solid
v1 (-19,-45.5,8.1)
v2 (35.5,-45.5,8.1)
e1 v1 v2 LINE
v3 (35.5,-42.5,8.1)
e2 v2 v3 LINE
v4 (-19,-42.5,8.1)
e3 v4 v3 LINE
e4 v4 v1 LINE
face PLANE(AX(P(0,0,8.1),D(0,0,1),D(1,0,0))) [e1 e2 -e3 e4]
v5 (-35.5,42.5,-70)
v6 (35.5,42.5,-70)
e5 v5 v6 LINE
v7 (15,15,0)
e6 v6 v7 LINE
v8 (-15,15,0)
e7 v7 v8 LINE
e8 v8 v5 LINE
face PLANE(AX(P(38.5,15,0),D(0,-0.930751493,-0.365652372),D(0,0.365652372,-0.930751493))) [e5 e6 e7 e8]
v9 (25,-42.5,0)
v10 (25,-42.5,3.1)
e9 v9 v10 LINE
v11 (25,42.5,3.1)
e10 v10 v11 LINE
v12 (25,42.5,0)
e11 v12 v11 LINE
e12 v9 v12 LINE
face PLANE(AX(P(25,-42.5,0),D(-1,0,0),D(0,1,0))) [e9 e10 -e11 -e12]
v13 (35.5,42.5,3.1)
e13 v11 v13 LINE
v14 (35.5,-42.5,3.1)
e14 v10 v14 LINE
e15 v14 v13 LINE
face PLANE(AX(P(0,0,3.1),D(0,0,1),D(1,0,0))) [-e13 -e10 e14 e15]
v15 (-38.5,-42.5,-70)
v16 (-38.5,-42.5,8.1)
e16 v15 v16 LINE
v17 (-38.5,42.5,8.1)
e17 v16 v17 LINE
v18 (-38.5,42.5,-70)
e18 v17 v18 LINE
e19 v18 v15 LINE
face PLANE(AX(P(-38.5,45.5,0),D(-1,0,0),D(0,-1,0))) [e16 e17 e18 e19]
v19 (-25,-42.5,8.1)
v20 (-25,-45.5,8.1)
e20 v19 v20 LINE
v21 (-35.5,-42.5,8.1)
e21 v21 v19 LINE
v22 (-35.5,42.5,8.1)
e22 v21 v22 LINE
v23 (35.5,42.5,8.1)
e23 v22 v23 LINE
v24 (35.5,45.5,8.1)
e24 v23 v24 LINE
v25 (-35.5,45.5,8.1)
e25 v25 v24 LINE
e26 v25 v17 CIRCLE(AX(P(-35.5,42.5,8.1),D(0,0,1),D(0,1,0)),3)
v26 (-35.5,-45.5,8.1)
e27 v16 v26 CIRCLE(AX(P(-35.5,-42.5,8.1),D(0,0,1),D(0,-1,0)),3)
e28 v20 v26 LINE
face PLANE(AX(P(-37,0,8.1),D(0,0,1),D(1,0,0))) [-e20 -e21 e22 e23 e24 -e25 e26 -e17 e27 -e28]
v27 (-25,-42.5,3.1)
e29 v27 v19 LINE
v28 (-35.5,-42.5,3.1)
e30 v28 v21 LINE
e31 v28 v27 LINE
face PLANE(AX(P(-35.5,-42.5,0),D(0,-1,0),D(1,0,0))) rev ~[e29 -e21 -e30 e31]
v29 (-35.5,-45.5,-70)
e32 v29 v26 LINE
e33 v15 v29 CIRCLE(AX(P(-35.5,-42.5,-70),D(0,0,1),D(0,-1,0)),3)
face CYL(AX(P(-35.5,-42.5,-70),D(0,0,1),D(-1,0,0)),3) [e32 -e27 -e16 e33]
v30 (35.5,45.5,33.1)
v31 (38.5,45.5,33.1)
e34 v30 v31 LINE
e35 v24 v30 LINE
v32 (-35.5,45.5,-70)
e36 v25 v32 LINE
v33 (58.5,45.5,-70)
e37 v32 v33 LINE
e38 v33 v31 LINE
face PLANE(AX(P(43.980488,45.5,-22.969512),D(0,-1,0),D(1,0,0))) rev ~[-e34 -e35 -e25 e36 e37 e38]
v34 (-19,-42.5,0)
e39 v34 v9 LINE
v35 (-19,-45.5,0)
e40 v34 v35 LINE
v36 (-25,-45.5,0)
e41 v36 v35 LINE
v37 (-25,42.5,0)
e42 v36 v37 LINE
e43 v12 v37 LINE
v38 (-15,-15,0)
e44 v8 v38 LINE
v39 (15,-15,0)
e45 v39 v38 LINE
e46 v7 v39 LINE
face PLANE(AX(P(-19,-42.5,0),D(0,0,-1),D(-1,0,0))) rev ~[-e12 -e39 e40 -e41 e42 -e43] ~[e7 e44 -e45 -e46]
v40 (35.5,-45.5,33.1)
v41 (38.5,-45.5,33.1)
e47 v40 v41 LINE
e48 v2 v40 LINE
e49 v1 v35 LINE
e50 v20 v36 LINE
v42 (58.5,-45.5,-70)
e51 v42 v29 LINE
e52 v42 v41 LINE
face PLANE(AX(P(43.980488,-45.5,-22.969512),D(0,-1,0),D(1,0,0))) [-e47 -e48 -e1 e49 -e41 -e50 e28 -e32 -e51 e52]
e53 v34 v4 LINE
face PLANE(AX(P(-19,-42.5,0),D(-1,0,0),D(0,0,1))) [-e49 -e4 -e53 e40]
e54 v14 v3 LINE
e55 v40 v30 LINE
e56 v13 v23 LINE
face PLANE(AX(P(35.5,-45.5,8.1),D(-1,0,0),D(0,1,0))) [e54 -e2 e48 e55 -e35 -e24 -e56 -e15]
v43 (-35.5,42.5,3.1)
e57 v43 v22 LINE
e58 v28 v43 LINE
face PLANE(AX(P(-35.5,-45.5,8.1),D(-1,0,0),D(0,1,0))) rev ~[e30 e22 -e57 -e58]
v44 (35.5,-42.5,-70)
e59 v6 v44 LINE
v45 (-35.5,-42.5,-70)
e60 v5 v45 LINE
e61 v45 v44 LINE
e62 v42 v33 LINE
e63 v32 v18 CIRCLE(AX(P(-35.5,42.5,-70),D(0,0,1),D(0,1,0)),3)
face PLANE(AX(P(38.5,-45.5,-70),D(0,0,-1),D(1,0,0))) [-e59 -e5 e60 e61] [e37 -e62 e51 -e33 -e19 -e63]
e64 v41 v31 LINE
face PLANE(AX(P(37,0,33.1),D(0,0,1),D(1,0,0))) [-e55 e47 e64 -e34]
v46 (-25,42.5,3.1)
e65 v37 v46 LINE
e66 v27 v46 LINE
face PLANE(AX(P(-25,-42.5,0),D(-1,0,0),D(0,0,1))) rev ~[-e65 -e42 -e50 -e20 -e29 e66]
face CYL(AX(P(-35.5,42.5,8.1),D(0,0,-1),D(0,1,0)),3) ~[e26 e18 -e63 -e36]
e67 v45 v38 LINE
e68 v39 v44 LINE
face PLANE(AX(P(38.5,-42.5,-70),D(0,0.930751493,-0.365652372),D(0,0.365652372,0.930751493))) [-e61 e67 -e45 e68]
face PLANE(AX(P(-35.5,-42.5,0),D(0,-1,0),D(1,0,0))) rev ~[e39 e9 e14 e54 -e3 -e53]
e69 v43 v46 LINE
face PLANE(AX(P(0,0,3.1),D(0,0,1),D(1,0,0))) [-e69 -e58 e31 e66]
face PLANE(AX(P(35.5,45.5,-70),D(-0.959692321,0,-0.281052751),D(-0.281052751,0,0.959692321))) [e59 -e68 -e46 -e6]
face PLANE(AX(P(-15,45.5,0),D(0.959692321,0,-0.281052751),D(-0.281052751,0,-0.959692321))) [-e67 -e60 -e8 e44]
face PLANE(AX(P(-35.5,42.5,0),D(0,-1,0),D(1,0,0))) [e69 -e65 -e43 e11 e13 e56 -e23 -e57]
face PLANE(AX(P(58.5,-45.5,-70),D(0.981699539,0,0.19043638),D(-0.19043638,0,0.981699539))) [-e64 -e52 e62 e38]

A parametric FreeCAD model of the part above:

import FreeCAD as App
import Part
import Sketcher
from FreeCAD import Vector


def edges_at(feature, points):
    """Names of the edges that pass closest to the given points."""
    edges = feature.Shape.Edges
    near = lambda p: min(range(len(edges)), key=lambda i: edges[i].distToShape(Part.Vertex(*p))[0])
    return sorted({f"Edge{near(p) + 1}" for p in points})


def add_polygon(sketch, points):
    """Adds a closed chain of lines whose ends are joined by coincident constraints."""
    first, n = sketch.GeometryCount, len(points)
    for a, b in zip(points, points[1:] + points[:1]):
        sketch.addGeometry(Part.LineSegment(App.Vector(*a, 0), App.Vector(*b, 0)), False)
    for i in range(n):
        sketch.addConstraint(Sketcher.Constraint("Coincident", first + i, 2, first + (i + 1) % n, 1))

doc = App.newDocument("Part")
body = doc.addObject("PartDesign::Body", "Body")

# Sketch on XY plane
sketch1 = body.newObject("Sketcher::SketchObject", "Sketch")
sketch1.AttachmentSupport = (doc.getObject("XY_Plane"), [""])
sketch1.MapMode = "FlatFace"
add_polygon(sketch1, [(-38, 46), (-38, -46), (38, -46), (38, 46)])  # lines 0-3
add_polygon(sketch1, [(25, -42), (-25, -42), (-25, 42), (25, 42)])  # lines 4-7
sketch1.addConstraint([
    Sketcher.Constraint("Vertical", 0),
    Sketcher.Constraint("Horizontal", 1),
    Sketcher.Constraint("Vertical", 2),
    Sketcher.Constraint("Horizontal", 3),
    Sketcher.Constraint("Horizontal", 4),
    Sketcher.Constraint("Vertical", 5),
    Sketcher.Constraint("Horizontal", 6),
    Sketcher.Constraint("Vertical", 7),
    Sketcher.Constraint("Symmetric", 0, 2, 2, 2, -1, 1),
    Sketcher.Constraint("Symmetric", 4, 2, 6, 2, -1, 1),
    Sketcher.Constraint("DistanceX", 1, 1, 1, 2, 77.0),
    Sketcher.Constraint("DistanceX", 4, 2, 4, 1, 50.0),
    Sketcher.Constraint("DistanceY", 0, 2, 0, 1, 91.0),
    Sketcher.Constraint("DistanceY", 5, 1, 5, 2, 85.0),
])
pad1 = body.newObject("PartDesign::Pad", "Pad")
pad1.Profile = sketch1
pad1.Length = 3.1

# Sketch on XY plane
sketch2 = body.newObject("Sketcher::SketchObject", "Sketch001")
sketch2.AttachmentSupport = (doc.getObject("XY_Plane"), [""])
sketch2.MapMode = "FlatFace"
sketch2.AttachmentOffset = App.Placement(Vector(0, 0, 3.1), App.Rotation())
add_polygon(sketch2, [(-38, 46), (-38, -46), (38, -46), (38, 46)])  # lines 0-3
add_polygon(sketch2, [(36, -42), (-36, -42), (-36, 42), (36, 42)])  # lines 4-7
sketch2.addConstraint([
    Sketcher.Constraint("Vertical", 0),
    Sketcher.Constraint("Horizontal", 1),
    Sketcher.Constraint("Vertical", 2),
    Sketcher.Constraint("Horizontal", 3),
    Sketcher.Constraint("Horizontal", 4),
    Sketcher.Constraint("Vertical", 5),
    Sketcher.Constraint("Horizontal", 6),
    Sketcher.Constraint("Vertical", 7),
    Sketcher.Constraint("Symmetric", 0, 2, 2, 2, -1, 1),
    Sketcher.Constraint("Symmetric", 4, 2, 6, 2, -1, 1),
    Sketcher.Constraint("DistanceX", 1, 1, 1, 2, 77.0),
    Sketcher.Constraint("DistanceX", 4, 2, 4, 1, 71.0),
    Sketcher.Constraint("DistanceY", 0, 2, 0, 1, 91.0),
    Sketcher.Constraint("DistanceY", 5, 1, 5, 2, 85.0),
])
pad2 = body.newObject("PartDesign::Pad", "Pad001")
pad2.Profile = sketch2
pad2.Length = 5

# Sketch on XY plane
sketch3 = body.newObject("Sketcher::SketchObject", "Sketch002")
sketch3.AttachmentSupport = (doc.getObject("XY_Plane"), [""])
sketch3.MapMode = "FlatFace"
sketch3.AttachmentOffset = App.Placement(Vector(0, 0, 8.1), App.Rotation())
add_polygon(sketch3, [(-38.5, 45.5), (-38.5, -45.5), (-35.5, -45.5), (-35.5, 45.5)])  # lines 0-3
add_polygon(sketch3, [(35.5, 45.5), (35.5, -45.5), (38.5, -45.5), (38.5, 45.5)])  # lines 4-7
sketch3.addConstraint([
    Sketcher.Constraint("Vertical", 0),
    Sketcher.Constraint("Horizontal", 1),
    Sketcher.Constraint("Vertical", 2),
    Sketcher.Constraint("Horizontal", 3),
    Sketcher.Constraint("Vertical", 4),
    Sketcher.Constraint("Horizontal", 5),
    Sketcher.Constraint("Vertical", 6),
    Sketcher.Constraint("Horizontal", 7),
    Sketcher.Constraint("Symmetric", 2, 2, 4, 2, -1, 1),
    Sketcher.Constraint("Symmetric", 0, 2, 6, 2, -1, 1),
    Sketcher.Constraint("Horizontal", 1, 2, 4, 2),
    Sketcher.Constraint("DistanceX", 1, 1, 1, 2, 3.0),
    Sketcher.Constraint("DistanceY", 0, 2, 0, 1, 91.0),
    Sketcher.Constraint("DistanceX", 1, 2, 4, 2, 71.0),
])
pad3 = body.newObject("PartDesign::Pad", "Pad002")
pad3.Profile = sketch3
pad3.Length = 25

# Sketch on XY plane
sketch4 = body.newObject("Sketcher::SketchObject", "Sketch003")
sketch4.AttachmentSupport = (doc.getObject("XY_Plane"), [""])
sketch4.MapMode = "FlatFace"
add_polygon(sketch4, [(-38, -46), (-38, 46), (38, 46), (38, -46)])  # lines 0-3
add_polygon(sketch4, [(36, 42), (-36, 42), (-36, -42), (36, -42)])  # lines 4-7
sketch4.addConstraint([
    Sketcher.Constraint("Vertical", 0),
    Sketcher.Constraint("Horizontal", 1),
    Sketcher.Constraint("Vertical", 2),
    Sketcher.Constraint("Horizontal", 3),
    Sketcher.Constraint("Horizontal", 4),
    Sketcher.Constraint("Vertical", 5),
    Sketcher.Constraint("Horizontal", 6),
    Sketcher.Constraint("Vertical", 7),
    Sketcher.Constraint("Symmetric", 0, 2, 2, 2, -1, 1),
    Sketcher.Constraint("Symmetric", 4, 2, 6, 2, -1, 1),
    Sketcher.Constraint("DistanceX", 1, 1, 1, 2, 77.0),
    Sketcher.Constraint("DistanceX", 4, 2, 4, 1, 71.0),
    Sketcher.Constraint("DistanceY", 0, 1, 0, 2, 91.0),
    Sketcher.Constraint("DistanceY", 5, 2, 5, 1, 85.0),
])
pad4 = body.newObject("PartDesign::Pad", "Pad003")
pad4.Profile = sketch4
pad4.Length = 70
pad4.Reversed = True

# Sketch on XZ plane
sketch5 = body.newObject("Sketcher::SketchObject", "Sketch004")
sketch5.AttachmentSupport = (doc.getObject("XZ_Plane"), [""])
sketch5.MapMode = "FlatFace"
sketch5.AttachmentOffset = App.Placement(Vector(0, 0, -45.5), App.Rotation())
add_polygon(sketch5, [(-38.5, -70), (-38.5, 0), (-15, 0), (-35.5, -70)])  # lines 0-3
add_polygon(sketch5, [(15, 0), (38.5, 0), (38.5, -70), (35.5, -70)])  # lines 4-7
sketch5.addConstraint([
    Sketcher.Constraint("Vertical", 0),
    Sketcher.Constraint("Horizontal", 1),
    Sketcher.Constraint("Horizontal", 3),
    Sketcher.Constraint("Horizontal", 4),
    Sketcher.Constraint("Vertical", 5),
    Sketcher.Constraint("Horizontal", 6),
    Sketcher.Constraint("Symmetric", 0, 2, 4, 2, -1, 1),
    Sketcher.Constraint("Symmetric", 2, 2, 6, 2, -2),
    Sketcher.Constraint("Symmetric", 1, 2, 7, 2, -2),
    Sketcher.Constraint("DistanceX", 3, 2, 3, 1, 3.0),
    Sketcher.Constraint("DistanceY", 0, 1, 0, 2, 70.0),
    Sketcher.Constraint("DistanceX", 1, 1, 1, 2, 23.5),
    Sketcher.Constraint("DistanceX", 1, 2, -1, 1, 15.0),
])
pad5 = body.newObject("PartDesign::Pad", "Pad004")
pad5.Profile = sketch5
pad5.Length = 91

# Sketch on YZ plane
sketch6 = body.newObject("Sketcher::SketchObject", "Sketch005")
sketch6.AttachmentSupport = (doc.getObject("YZ_Plane"), [""])
sketch6.MapMode = "FlatFace"
sketch6.AttachmentOffset = App.Placement(Vector(0, 0, 38.5), App.Rotation())
add_polygon(sketch6, [(45.5, -70), (45.5, 0), (15, 0), (42.5, -70)])  # lines 0-3
add_polygon(sketch6, [(-15, 0), (-45.5, 0), (-45.5, -70), (-42.5, -70)])  # lines 4-7
sketch6.addConstraint([
    Sketcher.Constraint("Vertical", 0),
    Sketcher.Constraint("Horizontal", 1),
    Sketcher.Constraint("Horizontal", 3),
    Sketcher.Constraint("Horizontal", 4),
    Sketcher.Constraint("Vertical", 5),
    Sketcher.Constraint("Horizontal", 6),
    Sketcher.Constraint("Symmetric", 0, 2, 4, 2, -1, 1),
    Sketcher.Constraint("Symmetric", 2, 2, 6, 2, -2),
    Sketcher.Constraint("Symmetric", 1, 2, 7, 2, -2),
    Sketcher.Constraint("DistanceX", 3, 1, 3, 2, 3.0),
    Sketcher.Constraint("DistanceY", 0, 1, 0, 2, 70.0),
    Sketcher.Constraint("DistanceX", 1, 2, 1, 1, 30.5),
    Sketcher.Constraint("DistanceX", -1, 1, 1, 2, 15.0),
])
pad6 = body.newObject("PartDesign::Pad", "Pad005")
pad6.Profile = sketch6
pad6.Length = 77
pad6.Reversed = True

# Sketch on XZ plane
sketch7 = body.newObject("Sketcher::SketchObject", "Sketch006")
sketch7.AttachmentSupport = (doc.getObject("XZ_Plane"), [""])
sketch7.MapMode = "FlatFace"
sketch7.AttachmentOffset = App.Placement(Vector(0, 0, 42.5), App.Rotation())
add_polygon(sketch7, [(-19, 8), (-19, 0), (-25, 0), (-25, 8)])  # lines 0-3
sketch7.addConstraint([
    Sketcher.Constraint("Vertical", 0),
    Sketcher.Constraint("Horizontal", 1),
    Sketcher.Constraint("Vertical", 2),
    Sketcher.Constraint("Horizontal", 3),
    Sketcher.Constraint("PointOnObject", 0, 2, -1),
    Sketcher.Constraint("DistanceX", 1, 2, 1, 1, 6.0),
    Sketcher.Constraint("DistanceY", 0, 2, 0, 1, 8.1),
    Sketcher.Constraint("DistanceX", 0, 2, -1, 1, 19.0),
])
pocket1 = body.newObject("PartDesign::Pocket", "Pocket")
pocket1.Profile = sketch7
pocket1.Length = 4
pocket1.Reversed = True

# Sketch on XZ plane
sketch8 = body.newObject("Sketcher::SketchObject", "Sketch007")
sketch8.AttachmentSupport = (doc.getObject("XZ_Plane"), [""])
sketch8.MapMode = "FlatFace"
sketch8.AttachmentOffset = App.Placement(Vector(0, 0, 45.5), App.Rotation())
add_polygon(sketch8, [(58, -70), (38, 33), (38, -70)])  # lines 0-2
sketch8.addConstraint([
    Sketcher.Constraint("Vertical", 1),
    Sketcher.Constraint("Horizontal", 2),
    Sketcher.Constraint("DistanceX", 2, 1, 2, 2, 20.0),
    Sketcher.Constraint("DistanceY", 1, 2, 1, 1, 103.1),
    Sketcher.Constraint("DistanceY", 1, 2, -1, 1, 70.0),
    Sketcher.Constraint("DistanceX", -1, 1, 0, 2, 38.5),
])
pad7 = body.newObject("PartDesign::Pad", "Pad006")
pad7.Profile = sketch8
pad7.Length = 91
pad7.Reversed = True

# Sketch on XY plane
sketch9 = body.newObject("Sketcher::SketchObject", "Sketch008")
sketch9.AttachmentSupport = (doc.getObject("XY_Plane"), [""])
sketch9.MapMode = "FlatFace"
sketch9.AttachmentOffset = App.Placement(Vector(0, 0, 33.1), App.Rotation())
add_polygon(sketch9, [(-38.5, 45.5), (-38.5, -45.5), (-35.5, -45.5), (-35.5, 45.5)])  # lines 0-3
sketch9.addConstraint([
    Sketcher.Constraint("Vertical", 0),
    Sketcher.Constraint("Horizontal", 1),
    Sketcher.Constraint("Vertical", 2),
    Sketcher.Constraint("Horizontal", 3),
    Sketcher.Constraint("DistanceX", 1, 1, 1, 2, 3.0),
    Sketcher.Constraint("DistanceY", 0, 2, 0, 1, 91.0),
    Sketcher.Constraint("DistanceX", 0, 2, -1, 1, 38.5),
    Sketcher.Constraint("DistanceY", 0, 2, -1, 1, 45.5),
])
pocket2 = body.newObject("PartDesign::Pocket", "Pocket001")
pocket2.Profile = sketch9
pocket2.Length = 25
doc.recompute()

fillet = body.newObject("PartDesign::Fillet", "Fillet")
fillet.Base = (pocket2, edges_at(pocket2, [(-38.5, -45.5, -30.95), (-38.5, 45.5, -30.95)]))
fillet.Radius = 3

doc.recompute()
